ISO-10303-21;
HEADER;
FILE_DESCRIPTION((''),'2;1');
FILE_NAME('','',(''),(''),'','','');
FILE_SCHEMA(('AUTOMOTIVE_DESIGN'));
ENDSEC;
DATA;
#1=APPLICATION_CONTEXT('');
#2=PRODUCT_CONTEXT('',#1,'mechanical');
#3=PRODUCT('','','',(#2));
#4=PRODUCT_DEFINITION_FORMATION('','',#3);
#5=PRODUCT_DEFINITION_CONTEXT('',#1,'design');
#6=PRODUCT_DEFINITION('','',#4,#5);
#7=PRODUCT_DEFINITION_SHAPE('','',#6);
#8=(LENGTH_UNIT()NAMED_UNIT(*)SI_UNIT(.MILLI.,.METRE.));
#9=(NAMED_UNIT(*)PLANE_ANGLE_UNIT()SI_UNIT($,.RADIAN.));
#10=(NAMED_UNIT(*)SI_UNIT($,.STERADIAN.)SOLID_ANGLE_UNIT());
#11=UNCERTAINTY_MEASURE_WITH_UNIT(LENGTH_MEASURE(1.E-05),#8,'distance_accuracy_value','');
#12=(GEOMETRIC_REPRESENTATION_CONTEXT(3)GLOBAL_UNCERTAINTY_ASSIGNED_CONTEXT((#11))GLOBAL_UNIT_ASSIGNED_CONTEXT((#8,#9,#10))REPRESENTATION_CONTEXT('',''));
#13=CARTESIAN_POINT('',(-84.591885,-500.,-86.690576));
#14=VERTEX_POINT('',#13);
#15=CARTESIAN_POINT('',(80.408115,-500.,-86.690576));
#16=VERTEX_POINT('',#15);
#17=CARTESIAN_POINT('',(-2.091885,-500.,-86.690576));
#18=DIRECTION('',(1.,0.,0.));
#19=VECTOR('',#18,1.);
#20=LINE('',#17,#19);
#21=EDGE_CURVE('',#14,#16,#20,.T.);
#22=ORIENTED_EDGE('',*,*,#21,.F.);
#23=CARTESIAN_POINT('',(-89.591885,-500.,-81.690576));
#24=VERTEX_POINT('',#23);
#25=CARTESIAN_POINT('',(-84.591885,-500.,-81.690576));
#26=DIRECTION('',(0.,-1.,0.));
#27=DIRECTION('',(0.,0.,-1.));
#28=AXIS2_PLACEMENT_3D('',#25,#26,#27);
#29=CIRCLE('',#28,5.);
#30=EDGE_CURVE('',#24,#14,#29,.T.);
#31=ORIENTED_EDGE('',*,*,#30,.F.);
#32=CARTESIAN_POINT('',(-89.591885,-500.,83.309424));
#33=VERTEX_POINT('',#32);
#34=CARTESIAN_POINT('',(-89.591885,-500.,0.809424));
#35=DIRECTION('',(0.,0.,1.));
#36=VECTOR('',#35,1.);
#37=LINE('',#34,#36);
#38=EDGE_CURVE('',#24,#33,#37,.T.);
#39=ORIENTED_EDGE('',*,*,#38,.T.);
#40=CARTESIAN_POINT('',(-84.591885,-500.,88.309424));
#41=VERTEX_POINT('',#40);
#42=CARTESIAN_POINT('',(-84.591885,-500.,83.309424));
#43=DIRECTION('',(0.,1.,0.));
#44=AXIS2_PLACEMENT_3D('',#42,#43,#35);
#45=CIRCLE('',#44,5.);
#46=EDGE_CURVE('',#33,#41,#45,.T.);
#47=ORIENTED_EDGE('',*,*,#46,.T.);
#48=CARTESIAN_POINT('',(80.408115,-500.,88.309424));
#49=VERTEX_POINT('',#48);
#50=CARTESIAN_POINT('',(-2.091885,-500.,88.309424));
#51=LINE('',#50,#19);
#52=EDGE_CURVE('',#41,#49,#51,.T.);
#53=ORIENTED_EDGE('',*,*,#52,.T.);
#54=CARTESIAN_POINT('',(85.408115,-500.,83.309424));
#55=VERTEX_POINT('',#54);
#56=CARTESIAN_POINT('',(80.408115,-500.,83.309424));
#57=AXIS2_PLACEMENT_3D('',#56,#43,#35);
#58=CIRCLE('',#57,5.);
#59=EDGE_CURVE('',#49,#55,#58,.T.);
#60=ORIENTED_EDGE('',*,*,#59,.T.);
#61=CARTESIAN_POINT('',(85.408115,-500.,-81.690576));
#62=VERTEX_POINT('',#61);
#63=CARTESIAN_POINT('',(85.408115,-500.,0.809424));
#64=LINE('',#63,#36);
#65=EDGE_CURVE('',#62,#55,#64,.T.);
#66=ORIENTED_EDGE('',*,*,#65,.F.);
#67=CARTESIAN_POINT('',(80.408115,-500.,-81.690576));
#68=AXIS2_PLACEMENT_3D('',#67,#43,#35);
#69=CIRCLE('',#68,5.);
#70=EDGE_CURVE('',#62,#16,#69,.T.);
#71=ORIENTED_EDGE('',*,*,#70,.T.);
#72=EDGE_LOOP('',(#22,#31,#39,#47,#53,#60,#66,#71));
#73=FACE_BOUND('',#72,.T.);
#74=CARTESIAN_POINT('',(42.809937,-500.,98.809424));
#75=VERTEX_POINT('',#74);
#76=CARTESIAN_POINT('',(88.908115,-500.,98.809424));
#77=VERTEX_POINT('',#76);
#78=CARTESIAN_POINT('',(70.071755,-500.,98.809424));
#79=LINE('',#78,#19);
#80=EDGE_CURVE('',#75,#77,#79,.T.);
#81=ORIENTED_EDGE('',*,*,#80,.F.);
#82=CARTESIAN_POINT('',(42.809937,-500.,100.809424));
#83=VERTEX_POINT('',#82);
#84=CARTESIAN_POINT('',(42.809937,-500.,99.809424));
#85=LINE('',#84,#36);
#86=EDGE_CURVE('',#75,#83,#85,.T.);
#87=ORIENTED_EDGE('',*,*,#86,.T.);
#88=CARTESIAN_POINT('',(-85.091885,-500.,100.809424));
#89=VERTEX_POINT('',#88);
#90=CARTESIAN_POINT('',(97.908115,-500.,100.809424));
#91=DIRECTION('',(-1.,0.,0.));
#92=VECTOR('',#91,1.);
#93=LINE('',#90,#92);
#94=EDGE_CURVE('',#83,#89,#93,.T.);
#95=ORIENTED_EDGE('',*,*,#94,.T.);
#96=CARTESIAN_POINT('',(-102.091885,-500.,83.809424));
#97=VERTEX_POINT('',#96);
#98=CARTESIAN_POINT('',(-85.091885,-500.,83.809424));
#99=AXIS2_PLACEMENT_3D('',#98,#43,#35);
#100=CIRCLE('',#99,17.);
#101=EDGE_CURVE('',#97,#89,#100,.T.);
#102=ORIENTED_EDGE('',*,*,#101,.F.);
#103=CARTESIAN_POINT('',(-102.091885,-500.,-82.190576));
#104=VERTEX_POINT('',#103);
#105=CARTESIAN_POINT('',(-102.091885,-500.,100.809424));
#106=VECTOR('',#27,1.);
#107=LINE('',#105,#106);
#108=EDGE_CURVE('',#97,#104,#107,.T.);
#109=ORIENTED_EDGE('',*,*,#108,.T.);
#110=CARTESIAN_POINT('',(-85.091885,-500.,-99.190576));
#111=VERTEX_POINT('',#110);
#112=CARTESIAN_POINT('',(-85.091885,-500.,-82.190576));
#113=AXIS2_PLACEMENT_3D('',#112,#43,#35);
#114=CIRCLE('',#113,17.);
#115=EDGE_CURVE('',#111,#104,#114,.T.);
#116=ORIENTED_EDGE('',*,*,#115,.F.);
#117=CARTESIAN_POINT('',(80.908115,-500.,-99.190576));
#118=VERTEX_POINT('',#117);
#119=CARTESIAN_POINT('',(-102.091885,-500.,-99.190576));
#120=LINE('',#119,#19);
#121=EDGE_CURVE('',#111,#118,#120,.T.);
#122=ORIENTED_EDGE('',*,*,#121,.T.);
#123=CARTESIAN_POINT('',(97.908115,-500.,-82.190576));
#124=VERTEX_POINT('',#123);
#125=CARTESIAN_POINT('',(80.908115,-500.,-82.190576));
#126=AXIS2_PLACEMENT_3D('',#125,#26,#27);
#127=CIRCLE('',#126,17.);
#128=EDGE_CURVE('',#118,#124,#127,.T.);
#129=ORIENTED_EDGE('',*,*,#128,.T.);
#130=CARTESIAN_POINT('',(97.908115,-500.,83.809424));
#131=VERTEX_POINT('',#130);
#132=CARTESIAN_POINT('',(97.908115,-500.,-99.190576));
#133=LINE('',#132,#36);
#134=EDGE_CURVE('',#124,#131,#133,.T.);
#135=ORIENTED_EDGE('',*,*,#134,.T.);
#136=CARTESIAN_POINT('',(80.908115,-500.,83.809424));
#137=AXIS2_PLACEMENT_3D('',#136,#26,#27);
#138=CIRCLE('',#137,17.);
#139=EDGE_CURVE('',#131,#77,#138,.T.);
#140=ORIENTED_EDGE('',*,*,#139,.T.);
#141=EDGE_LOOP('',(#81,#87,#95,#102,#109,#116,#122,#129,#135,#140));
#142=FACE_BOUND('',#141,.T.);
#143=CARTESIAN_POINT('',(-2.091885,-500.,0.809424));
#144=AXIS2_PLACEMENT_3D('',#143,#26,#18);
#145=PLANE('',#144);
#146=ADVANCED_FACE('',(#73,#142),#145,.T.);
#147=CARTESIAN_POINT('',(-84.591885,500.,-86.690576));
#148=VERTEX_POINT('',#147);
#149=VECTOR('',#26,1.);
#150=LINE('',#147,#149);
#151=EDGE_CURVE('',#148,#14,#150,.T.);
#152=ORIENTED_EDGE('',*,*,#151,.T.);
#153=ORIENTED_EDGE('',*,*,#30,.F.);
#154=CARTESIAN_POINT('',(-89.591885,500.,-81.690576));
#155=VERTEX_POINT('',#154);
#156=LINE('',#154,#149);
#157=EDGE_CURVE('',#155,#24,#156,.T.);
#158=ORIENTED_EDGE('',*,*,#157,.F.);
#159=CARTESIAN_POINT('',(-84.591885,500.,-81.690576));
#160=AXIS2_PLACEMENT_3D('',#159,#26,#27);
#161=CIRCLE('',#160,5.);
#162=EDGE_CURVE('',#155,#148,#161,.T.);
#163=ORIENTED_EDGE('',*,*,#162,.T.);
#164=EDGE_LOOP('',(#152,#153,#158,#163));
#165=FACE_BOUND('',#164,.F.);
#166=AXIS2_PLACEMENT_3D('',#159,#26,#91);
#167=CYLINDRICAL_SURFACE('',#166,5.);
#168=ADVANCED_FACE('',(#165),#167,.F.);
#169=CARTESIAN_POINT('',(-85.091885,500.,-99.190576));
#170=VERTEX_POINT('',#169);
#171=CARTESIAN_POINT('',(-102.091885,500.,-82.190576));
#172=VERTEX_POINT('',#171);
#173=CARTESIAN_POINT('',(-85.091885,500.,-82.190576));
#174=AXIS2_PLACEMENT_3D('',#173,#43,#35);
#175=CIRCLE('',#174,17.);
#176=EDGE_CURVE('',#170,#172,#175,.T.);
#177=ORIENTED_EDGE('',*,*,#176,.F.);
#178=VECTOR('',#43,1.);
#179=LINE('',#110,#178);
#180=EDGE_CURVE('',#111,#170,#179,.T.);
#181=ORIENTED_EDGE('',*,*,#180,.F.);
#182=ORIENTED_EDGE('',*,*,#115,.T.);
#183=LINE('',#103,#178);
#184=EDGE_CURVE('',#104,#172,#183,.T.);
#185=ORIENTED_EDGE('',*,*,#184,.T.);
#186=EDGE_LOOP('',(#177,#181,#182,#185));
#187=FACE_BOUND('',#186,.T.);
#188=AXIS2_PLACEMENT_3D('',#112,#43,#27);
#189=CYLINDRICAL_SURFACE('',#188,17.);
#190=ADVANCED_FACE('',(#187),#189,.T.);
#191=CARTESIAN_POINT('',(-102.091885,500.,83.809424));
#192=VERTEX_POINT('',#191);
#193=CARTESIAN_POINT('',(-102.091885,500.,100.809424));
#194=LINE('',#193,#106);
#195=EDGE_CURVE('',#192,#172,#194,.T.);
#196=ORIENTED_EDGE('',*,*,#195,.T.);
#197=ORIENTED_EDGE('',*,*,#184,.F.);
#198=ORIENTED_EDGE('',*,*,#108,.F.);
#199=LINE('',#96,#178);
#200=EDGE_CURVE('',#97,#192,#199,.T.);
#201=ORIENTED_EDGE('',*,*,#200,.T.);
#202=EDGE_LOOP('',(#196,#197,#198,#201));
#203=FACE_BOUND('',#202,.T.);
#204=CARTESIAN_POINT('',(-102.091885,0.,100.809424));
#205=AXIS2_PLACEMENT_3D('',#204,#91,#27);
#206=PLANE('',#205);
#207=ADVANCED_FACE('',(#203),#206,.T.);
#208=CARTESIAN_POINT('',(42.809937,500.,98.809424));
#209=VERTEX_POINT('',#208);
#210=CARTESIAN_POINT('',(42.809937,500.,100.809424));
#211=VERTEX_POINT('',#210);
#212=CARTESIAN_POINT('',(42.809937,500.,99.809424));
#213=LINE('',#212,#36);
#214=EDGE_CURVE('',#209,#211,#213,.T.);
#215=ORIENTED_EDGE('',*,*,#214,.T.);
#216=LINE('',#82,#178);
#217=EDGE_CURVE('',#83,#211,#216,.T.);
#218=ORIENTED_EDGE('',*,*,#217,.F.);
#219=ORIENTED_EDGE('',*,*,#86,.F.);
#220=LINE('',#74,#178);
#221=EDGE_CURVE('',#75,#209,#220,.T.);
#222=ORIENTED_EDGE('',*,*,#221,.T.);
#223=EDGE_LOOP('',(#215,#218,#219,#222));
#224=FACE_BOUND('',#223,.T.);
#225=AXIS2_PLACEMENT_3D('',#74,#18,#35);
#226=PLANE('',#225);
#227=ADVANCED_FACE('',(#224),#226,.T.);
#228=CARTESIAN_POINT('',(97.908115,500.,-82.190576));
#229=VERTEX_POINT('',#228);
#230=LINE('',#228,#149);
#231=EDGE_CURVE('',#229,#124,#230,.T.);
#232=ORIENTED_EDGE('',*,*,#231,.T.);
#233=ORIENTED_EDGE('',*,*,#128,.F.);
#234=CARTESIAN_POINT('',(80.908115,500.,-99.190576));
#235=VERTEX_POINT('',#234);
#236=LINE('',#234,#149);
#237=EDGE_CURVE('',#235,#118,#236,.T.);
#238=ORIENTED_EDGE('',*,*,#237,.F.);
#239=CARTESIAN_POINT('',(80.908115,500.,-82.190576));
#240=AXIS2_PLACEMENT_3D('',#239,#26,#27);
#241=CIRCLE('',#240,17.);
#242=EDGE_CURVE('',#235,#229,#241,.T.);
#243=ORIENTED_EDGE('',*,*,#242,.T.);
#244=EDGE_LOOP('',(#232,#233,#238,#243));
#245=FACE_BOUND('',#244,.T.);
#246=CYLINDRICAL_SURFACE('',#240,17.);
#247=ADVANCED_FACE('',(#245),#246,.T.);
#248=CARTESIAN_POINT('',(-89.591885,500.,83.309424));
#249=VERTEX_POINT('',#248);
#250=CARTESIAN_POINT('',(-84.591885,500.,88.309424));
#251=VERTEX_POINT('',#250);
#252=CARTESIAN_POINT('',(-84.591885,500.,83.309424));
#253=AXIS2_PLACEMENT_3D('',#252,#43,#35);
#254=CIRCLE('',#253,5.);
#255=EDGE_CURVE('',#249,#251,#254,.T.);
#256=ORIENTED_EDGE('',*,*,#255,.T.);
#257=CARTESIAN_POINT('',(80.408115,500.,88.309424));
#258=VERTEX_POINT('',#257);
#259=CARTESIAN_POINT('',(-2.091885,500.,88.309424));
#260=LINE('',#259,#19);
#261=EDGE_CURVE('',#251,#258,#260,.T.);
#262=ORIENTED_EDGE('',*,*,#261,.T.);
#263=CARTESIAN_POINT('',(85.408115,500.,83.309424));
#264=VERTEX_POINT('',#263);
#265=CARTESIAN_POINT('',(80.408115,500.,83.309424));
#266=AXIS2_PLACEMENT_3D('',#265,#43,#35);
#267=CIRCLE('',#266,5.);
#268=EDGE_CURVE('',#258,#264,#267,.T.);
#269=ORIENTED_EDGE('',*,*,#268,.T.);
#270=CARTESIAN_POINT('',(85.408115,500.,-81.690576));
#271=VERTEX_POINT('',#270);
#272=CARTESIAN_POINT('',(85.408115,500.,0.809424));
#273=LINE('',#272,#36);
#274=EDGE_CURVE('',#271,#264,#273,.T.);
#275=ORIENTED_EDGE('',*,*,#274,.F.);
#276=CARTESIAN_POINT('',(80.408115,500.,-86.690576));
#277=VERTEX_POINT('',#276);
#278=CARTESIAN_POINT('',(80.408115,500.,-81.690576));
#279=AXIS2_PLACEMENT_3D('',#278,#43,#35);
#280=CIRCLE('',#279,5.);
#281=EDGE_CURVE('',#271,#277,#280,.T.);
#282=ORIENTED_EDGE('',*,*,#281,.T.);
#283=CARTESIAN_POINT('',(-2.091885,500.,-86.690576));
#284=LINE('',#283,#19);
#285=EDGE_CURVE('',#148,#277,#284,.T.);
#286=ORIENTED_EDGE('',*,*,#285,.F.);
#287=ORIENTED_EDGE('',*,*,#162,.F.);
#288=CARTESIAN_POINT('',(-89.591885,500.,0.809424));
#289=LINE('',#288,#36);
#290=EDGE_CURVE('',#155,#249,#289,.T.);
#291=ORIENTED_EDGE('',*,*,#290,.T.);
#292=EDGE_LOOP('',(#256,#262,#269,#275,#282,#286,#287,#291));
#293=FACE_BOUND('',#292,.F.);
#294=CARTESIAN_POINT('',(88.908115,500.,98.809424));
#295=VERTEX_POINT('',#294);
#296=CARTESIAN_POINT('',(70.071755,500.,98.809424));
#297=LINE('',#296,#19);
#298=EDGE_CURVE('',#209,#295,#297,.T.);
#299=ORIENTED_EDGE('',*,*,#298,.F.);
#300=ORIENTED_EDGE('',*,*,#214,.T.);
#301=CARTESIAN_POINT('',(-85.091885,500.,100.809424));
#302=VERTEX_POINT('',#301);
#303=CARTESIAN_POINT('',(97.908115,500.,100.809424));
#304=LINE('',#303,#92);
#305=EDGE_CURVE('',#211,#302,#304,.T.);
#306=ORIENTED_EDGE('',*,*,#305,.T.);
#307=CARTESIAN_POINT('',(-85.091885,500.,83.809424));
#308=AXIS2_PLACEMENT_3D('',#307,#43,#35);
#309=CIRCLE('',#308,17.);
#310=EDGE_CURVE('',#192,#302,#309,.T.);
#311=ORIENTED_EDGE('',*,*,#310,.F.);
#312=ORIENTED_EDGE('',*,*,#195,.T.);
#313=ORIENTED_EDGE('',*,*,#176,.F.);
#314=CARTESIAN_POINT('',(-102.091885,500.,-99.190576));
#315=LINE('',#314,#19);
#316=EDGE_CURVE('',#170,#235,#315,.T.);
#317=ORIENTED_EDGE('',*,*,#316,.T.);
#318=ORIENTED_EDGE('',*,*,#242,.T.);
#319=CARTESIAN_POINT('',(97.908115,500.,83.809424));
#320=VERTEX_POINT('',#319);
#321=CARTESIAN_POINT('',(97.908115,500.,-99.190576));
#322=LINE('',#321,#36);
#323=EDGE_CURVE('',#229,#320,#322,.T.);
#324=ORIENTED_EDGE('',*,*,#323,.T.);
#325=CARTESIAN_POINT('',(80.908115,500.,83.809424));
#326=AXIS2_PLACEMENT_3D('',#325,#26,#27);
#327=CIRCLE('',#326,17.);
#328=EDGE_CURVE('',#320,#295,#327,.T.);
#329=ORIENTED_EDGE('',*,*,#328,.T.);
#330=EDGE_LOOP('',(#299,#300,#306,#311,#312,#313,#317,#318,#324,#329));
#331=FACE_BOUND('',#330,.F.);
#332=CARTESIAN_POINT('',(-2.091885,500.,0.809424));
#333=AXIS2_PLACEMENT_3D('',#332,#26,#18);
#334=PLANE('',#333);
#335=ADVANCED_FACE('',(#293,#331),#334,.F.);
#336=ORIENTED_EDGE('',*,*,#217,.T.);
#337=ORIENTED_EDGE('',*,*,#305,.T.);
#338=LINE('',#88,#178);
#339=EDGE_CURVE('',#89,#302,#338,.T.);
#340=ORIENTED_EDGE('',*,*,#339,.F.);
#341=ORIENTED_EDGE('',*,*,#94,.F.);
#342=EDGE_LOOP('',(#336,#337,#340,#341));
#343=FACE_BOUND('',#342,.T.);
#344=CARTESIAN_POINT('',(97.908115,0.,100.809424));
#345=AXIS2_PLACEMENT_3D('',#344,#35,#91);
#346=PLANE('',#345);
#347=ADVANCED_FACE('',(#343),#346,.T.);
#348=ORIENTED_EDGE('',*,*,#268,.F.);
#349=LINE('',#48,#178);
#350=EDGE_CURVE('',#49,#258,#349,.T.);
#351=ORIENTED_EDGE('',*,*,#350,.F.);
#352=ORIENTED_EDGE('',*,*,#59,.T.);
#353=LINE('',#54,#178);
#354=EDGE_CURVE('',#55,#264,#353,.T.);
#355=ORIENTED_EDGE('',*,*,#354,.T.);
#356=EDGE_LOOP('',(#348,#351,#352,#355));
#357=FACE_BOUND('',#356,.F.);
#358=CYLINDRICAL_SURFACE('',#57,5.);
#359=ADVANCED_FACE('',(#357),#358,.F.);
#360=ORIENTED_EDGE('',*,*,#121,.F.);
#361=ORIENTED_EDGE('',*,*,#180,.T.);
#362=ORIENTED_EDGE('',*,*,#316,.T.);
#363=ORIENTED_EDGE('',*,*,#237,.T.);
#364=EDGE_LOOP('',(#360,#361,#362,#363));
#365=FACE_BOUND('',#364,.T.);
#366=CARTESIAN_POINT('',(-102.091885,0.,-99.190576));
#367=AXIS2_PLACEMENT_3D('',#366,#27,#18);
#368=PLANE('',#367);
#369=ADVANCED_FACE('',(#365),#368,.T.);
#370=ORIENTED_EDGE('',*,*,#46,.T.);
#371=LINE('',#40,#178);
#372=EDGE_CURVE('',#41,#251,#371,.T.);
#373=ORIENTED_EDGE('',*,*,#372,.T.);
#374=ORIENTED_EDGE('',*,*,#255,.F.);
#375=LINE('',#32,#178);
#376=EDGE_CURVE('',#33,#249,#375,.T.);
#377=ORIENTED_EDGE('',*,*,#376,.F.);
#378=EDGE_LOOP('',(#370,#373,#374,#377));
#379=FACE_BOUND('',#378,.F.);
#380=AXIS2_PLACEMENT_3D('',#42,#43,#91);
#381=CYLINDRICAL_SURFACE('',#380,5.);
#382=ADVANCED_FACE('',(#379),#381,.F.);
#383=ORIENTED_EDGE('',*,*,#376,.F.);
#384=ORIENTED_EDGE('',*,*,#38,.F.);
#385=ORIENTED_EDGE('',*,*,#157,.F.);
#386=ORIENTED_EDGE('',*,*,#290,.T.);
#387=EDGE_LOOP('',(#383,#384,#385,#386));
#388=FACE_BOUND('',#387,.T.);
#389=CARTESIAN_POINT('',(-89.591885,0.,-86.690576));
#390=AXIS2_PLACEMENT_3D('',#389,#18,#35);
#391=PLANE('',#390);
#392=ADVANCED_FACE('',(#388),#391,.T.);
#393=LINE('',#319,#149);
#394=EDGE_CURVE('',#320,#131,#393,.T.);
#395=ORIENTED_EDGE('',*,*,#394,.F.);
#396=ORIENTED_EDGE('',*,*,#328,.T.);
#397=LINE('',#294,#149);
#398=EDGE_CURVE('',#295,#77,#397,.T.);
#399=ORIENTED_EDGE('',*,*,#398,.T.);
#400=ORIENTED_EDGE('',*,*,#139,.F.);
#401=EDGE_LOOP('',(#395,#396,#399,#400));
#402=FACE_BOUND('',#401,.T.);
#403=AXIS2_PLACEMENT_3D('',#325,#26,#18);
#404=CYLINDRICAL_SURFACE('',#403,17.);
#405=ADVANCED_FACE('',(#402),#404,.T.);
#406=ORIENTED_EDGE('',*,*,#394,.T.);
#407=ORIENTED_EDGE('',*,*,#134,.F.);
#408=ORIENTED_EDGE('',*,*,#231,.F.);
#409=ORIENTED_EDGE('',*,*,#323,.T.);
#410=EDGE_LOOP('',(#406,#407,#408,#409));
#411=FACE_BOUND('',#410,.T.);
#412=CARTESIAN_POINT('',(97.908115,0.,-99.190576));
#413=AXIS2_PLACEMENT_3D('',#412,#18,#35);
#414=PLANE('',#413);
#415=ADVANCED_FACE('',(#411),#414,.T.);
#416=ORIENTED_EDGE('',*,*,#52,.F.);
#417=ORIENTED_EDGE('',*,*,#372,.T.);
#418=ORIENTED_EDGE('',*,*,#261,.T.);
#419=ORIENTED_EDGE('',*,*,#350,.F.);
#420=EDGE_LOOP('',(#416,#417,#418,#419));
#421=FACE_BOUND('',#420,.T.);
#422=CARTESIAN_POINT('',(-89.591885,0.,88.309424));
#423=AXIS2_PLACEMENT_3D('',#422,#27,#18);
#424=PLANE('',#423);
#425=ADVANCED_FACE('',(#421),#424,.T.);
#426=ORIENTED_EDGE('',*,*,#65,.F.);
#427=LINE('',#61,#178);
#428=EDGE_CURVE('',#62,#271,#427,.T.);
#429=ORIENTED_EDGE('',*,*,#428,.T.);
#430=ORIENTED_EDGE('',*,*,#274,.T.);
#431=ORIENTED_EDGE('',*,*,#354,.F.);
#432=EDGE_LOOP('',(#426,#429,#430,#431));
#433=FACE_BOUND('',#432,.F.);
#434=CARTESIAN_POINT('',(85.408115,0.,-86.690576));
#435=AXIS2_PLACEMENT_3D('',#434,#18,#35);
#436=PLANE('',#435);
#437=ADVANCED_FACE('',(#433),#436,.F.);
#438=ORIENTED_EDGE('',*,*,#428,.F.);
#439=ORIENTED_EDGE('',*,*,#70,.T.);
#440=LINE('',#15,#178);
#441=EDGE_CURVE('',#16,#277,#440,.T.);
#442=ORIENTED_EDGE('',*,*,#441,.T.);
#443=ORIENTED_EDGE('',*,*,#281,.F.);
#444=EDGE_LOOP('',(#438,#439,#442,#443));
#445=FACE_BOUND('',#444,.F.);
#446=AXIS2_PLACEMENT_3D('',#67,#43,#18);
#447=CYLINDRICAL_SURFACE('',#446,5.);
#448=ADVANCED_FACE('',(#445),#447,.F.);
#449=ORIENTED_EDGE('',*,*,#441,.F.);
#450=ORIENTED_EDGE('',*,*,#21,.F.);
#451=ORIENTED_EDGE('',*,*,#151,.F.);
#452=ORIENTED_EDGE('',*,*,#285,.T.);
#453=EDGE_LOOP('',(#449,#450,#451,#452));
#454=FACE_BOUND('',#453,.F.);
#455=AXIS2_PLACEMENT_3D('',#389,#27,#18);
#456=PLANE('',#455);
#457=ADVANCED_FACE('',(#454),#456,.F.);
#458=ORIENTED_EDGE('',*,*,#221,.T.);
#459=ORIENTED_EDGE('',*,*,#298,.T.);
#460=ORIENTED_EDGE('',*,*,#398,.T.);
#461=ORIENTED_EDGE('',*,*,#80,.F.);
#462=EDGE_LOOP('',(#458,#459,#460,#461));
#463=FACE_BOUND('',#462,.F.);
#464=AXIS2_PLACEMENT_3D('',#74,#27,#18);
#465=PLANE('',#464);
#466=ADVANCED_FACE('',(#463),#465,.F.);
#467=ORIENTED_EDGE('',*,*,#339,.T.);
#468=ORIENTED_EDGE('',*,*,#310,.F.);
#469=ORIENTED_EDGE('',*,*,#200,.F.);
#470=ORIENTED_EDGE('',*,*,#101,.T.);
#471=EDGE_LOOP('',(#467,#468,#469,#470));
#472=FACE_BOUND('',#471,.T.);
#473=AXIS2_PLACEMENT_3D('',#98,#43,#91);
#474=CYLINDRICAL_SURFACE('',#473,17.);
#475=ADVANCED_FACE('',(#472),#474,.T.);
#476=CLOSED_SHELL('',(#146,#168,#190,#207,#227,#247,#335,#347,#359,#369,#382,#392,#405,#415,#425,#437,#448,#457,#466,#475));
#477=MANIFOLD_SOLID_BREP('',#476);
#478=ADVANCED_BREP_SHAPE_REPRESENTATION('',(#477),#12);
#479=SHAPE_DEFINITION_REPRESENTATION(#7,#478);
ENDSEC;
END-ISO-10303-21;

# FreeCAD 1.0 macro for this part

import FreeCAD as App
import Part
import Sketcher
Q = App.Units.Quantity


def edges_at(feature, points):
    """Names of the edges that pass closest to the given points."""
    edges = feature.Shape.Edges
    near = lambda p: min(range(len(edges)), key=lambda i: edges[i].distToShape(Part.Vertex(*p))[0])
    return sorted({f"Edge{near(p) + 1}" for p in points})


def add_polygon(sketch, points):
    """Adds a closed chain of lines whose ends are joined by coincident constraints."""
    first, n = sketch.GeometryCount, len(points)
    for a, b in zip(points, points[1:] + points[:1]):
        sketch.addGeometry(Part.LineSegment(App.Vector(*a, 0), App.Vector(*b, 0)), False)
    for i in range(n):
        sketch.addConstraint(Sketcher.Constraint("Coincident", first + i, 2, first + (i + 1) % n, 1))

doc = App.newDocument("Part")
body = doc.addObject("PartDesign::Body", "Body")

# Sketch on XZ plane
sketch1 = body.newObject("Sketcher::SketchObject", "Sketch")
sketch1.AttachmentSupport = (doc.getObject("XZ_Plane"), [""])
sketch1.MapMode = "FlatFace"
add_polygon(sketch1, [(-102.091885, -99.190576), (97.908115, -99.190576), (97.908115, 100.809424), (-102.091885, 100.809424)])  # lines 0-3
add_polygon(sketch1, [(85.408115, -86.690576), (-89.591885, -86.690576), (-89.591885, 88.309424), (85.408115, 88.309424)])  # lines 4-7
sketch1.addConstraint([
    Sketcher.Constraint("Horizontal", 0),
    Sketcher.Constraint("Vertical", 1),
    Sketcher.Constraint("Horizontal", 2),
    Sketcher.Constraint("Vertical", 3),
    Sketcher.Constraint("Horizontal", 4),
    Sketcher.Constraint("Vertical", 5),
    Sketcher.Constraint("Horizontal", 6),
    Sketcher.Constraint("Vertical", 7),
    Sketcher.Constraint("Equal", 2, 1),
    Sketcher.Constraint("Equal", 6, 5),
    Sketcher.Constraint("DistanceX", 0, 1, 0, 2, Q("200 mm")),
    Sketcher.Constraint("DistanceX", 4, 2, 4, 1, Q("175 mm")),
    Sketcher.Constraint("DistanceX", 3, 2, 4, 2, Q("12.5 mm")),
    Sketcher.Constraint("DistanceY", 3, 2, 4, 2, Q("12.5 mm")),
    Sketcher.Constraint("DistanceX", -1, 1, 0, 2, Q("97.908115 mm")),
    Sketcher.Constraint("DistanceY", 0, 2, -1, 1, Q("99.190576 mm")),
])
pad1 = body.newObject("PartDesign::Pad", "Pad")
pad1.Profile = sketch1
pad1.Length = 1000
pad1.Midplane = True
doc.recompute()

fillet = body.newObject("PartDesign::Fillet", "Fillet")
fillet.Base = (pad1, edges_at(pad1, [
    (-89.592, 0, -86.691),
    (-89.592, 0, 88.309),
    (85.408, 0, 88.309),
    (85.408, 0, -86.691),
]))
fillet.Radius = 5
doc.recompute()

fillet2 = body.newObject("PartDesign::Fillet", "Fillet001")
fillet2.Base = (fillet, edges_at(fillet, [
    (97.908, 0, 100.809),
    (-102.092, 0, 100.809),
    (-102.092, 0, -99.191),
    (97.908, 0, -99.191),
]))
fillet2.Radius = 17

# Sketch on XZ plane
sketch2 = body.newObject("Sketcher::SketchObject", "Sketch001")
sketch2.AttachmentSupport = (doc.getObject("XZ_Plane"), [""])
sketch2.MapMode = "FlatFace"
sketch2.AttachmentOffset = App.Placement(App.Vector(0, 0, 500), App.Rotation())
add_polygon(sketch2, [(42.809937, 100.809424), (42.809937, 98.809424), (97.333573, 98.809424), (97.333573, 100.809424)])  # lines 0-3
sketch2.addConstraint([
    Sketcher.Constraint("Vertical", 0),
    Sketcher.Constraint("Horizontal", 1),
    Sketcher.Constraint("Vertical", 2),
    Sketcher.Constraint("Horizontal", 3),
    Sketcher.Constraint("DistanceY", 0, 2, 0, 1, Q("2 mm")),
    Sketcher.Constraint("DistanceX", 1, 1, 1, 2, Q("54.523636 mm")),
    Sketcher.Constraint("DistanceX", -1, 1, 0, 2, Q("42.809937 mm")),
    Sketcher.Constraint("DistanceY", -1, 1, 0, 2, Q("98.809424 mm")),
])
pocket1 = body.newObject("PartDesign::Pocket", "Pocket")
pocket1.Profile = sketch2
pocket1.Type = "ThroughAll"

doc.recompute()
